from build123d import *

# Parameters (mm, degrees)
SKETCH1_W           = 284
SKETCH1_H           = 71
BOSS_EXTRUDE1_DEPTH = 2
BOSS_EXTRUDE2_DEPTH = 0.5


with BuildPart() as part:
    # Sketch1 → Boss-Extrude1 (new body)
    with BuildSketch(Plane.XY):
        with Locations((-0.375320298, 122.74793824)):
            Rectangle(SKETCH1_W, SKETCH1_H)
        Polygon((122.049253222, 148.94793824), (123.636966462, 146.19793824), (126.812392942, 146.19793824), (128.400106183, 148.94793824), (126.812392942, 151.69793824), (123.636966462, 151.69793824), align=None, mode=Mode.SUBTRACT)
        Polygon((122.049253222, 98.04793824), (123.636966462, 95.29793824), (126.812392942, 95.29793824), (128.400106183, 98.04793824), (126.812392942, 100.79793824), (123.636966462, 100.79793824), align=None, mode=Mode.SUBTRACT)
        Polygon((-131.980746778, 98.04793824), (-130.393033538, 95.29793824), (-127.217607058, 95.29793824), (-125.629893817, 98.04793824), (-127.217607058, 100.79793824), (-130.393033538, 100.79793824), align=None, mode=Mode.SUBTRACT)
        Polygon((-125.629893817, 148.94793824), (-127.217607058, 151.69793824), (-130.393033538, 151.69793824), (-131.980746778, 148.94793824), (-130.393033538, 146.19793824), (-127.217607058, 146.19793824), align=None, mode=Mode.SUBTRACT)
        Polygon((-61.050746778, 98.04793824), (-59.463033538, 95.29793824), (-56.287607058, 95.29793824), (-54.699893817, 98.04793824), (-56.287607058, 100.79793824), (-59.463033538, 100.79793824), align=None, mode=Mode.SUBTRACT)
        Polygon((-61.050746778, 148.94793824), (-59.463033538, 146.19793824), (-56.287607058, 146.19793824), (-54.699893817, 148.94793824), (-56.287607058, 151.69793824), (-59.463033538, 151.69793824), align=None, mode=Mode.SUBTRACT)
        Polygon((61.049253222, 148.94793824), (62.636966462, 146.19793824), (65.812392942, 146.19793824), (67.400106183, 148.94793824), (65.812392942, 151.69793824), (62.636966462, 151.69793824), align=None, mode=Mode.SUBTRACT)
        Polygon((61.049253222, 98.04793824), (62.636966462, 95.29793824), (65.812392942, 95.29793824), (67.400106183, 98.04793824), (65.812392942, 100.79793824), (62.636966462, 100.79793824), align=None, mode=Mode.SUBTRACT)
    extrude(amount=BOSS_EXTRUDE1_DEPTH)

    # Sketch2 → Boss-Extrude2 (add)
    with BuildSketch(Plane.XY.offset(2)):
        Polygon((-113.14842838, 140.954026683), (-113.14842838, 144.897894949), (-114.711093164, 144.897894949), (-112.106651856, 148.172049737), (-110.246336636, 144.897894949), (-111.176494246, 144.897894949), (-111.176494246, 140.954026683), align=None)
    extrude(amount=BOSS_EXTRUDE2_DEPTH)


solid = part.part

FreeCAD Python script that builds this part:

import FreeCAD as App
import Part
import Sketcher

V = App.Vector
Q = App.Units.Quantity

doc = App.newDocument("Part")
params = doc.addObject("Spreadsheet::Sheet", "Params")
for row, (alias, value) in enumerate([
    ("sketch1_width", "284 mm"),
    ("sketch1_height", "71 mm"),
    ("pad1_length", "2 mm"),
    ("pad2_length", "0.5 mm"),
], start=1):
    params.set(f"A{row}", alias)
    params.set(f"B{row}", "=" + value)
    params.setAlias(f"B{row}", alias)

body = doc.addObject("PartDesign::Body", "Body")

sketch1 = body.newObject("Sketcher::SketchObject", "Sketch")
sketch1.AttachmentSupport = (doc.getObject("XY_Plane"), [""])
sketch1.MapMode = "FlatFace"
sketch1.addGeometry([
    Part.LineSegment(V(-142.4, 158.2, 0), V(-142.4, 87.2, 0)),
    Part.LineSegment(V(-142.4, 87.2, 0), V(141.6, 87.2, 0)),
    Part.LineSegment(V(141.6, 87.2, 0), V(141.6, 158.2, 0)),
    Part.LineSegment(V(141.6, 158.2, 0), V(-142.4, 158.2, 0)),
    Part.LineSegment(V(-130.4, 95.3, 0), V(-132, 98, 0)),
    Part.LineSegment(V(-132, 98, 0), V(-130.4, 100.8, 0)),
    Part.LineSegment(V(-130.4, 100.8, 0), V(-127.2, 100.8, 0)),
    Part.LineSegment(V(-127.2, 100.8, 0), V(-125.6, 98, 0)),
    Part.LineSegment(V(-125.6, 98, 0), V(-127.2, 95.3, 0)),
    Part.LineSegment(V(-127.2, 95.3, 0), V(-130.4, 95.3, 0)),
    Part.LineSegment(V(-59.5, 95.3, 0), V(-61.1, 98, 0)),
    Part.LineSegment(V(-61.1, 98, 0), V(-59.5, 100.8, 0)),
    Part.LineSegment(V(-59.5, 100.8, 0), V(-56.3, 100.8, 0)),
    Part.LineSegment(V(-56.3, 100.8, 0), V(-54.7, 98, 0)),
    Part.LineSegment(V(-54.7, 98, 0), V(-56.3, 95.3, 0)),
    Part.LineSegment(V(-56.3, 95.3, 0), V(-59.5, 95.3, 0)),
    Part.LineSegment(V(62.6, 95.3, 0), V(61, 98, 0)),
    Part.LineSegment(V(61, 98, 0), V(62.6, 100.8, 0)),
    Part.LineSegment(V(62.6, 100.8, 0), V(65.8, 100.8, 0)),
    Part.LineSegment(V(65.8, 100.8, 0), V(67.4, 98, 0)),
    Part.LineSegment(V(67.4, 98, 0), V(65.8, 95.3, 0)),
    Part.LineSegment(V(65.8, 95.3, 0), V(62.6, 95.3, 0)),
    Part.LineSegment(V(123.6, 95.3, 0), V(122, 98, 0)),
    Part.LineSegment(V(122, 98, 0), V(123.6, 100.8, 0)),
    Part.LineSegment(V(123.6, 100.8, 0), V(126.8, 100.8, 0)),
    Part.LineSegment(V(126.8, 100.8, 0), V(128.4, 98, 0)),
    Part.LineSegment(V(128.4, 98, 0), V(126.8, 95.3, 0)),
    Part.LineSegment(V(126.8, 95.3, 0), V(123.6, 95.3, 0)),
    Part.LineSegment(V(-127.2, 151.7, 0), V(-125.6, 148.9, 0)),
    Part.LineSegment(V(-125.6, 148.9, 0), V(-127.2, 146.2, 0)),
    Part.LineSegment(V(-127.2, 146.2, 0), V(-130.4, 146.2, 0)),
    Part.LineSegment(V(-130.4, 146.2, 0), V(-132, 148.9, 0)),
    Part.LineSegment(V(-132, 148.9, 0), V(-130.4, 151.7, 0)),
    Part.LineSegment(V(-130.4, 151.7, 0), V(-127.2, 151.7, 0)),
    Part.LineSegment(V(-59.5, 146.2, 0), V(-61.1, 148.9, 0)),
    Part.LineSegment(V(-61.1, 148.9, 0), V(-59.5, 151.7, 0)),
    Part.LineSegment(V(-59.5, 151.7, 0), V(-56.3, 151.7, 0)),
    Part.LineSegment(V(-56.3, 151.7, 0), V(-54.7, 148.9, 0)),
    Part.LineSegment(V(-54.7, 148.9, 0), V(-56.3, 146.2, 0)),
    Part.LineSegment(V(-56.3, 146.2, 0), V(-59.5, 146.2, 0)),
    Part.LineSegment(V(62.6, 146.2, 0), V(61, 148.9, 0)),
    Part.LineSegment(V(61, 148.9, 0), V(62.6, 151.7, 0)),
    Part.LineSegment(V(62.6, 151.7, 0), V(65.8, 151.7, 0)),
    Part.LineSegment(V(65.8, 151.7, 0), V(67.4, 148.9, 0)),
    Part.LineSegment(V(67.4, 148.9, 0), V(65.8, 146.2, 0)),
    Part.LineSegment(V(65.8, 146.2, 0), V(62.6, 146.2, 0)),
    Part.LineSegment(V(123.6, 146.2, 0), V(122, 148.9, 0)),
    Part.LineSegment(V(122, 148.9, 0), V(123.6, 151.7, 0)),
    Part.LineSegment(V(123.6, 151.7, 0), V(126.8, 151.7, 0)),
    Part.LineSegment(V(126.8, 151.7, 0), V(128.4, 148.9, 0)),
    Part.LineSegment(V(128.4, 148.9, 0), V(126.8, 146.2, 0)),
    Part.LineSegment(V(126.8, 146.2, 0), V(123.6, 146.2, 0)),
], False)
sketch1.addConstraint([
    Sketcher.Constraint("Coincident", 0, 2, 1, 1),
    Sketcher.Constraint("Coincident", 1, 2, 2, 1),
    Sketcher.Constraint("Coincident", 2, 2, 3, 1),
    Sketcher.Constraint("Coincident", 3, 2, 0, 1),
    Sketcher.Constraint("Coincident", 4, 2, 5, 1),
    Sketcher.Constraint("Coincident", 5, 2, 6, 1),
    Sketcher.Constraint("Coincident", 6, 2, 7, 1),
    Sketcher.Constraint("Coincident", 7, 2, 8, 1),
    Sketcher.Constraint("Coincident", 8, 2, 9, 1),
    Sketcher.Constraint("Coincident", 9, 2, 4, 1),
    Sketcher.Constraint("Coincident", 10, 2, 11, 1),
    Sketcher.Constraint("Coincident", 11, 2, 12, 1),
    Sketcher.Constraint("Coincident", 12, 2, 13, 1),
    Sketcher.Constraint("Coincident", 13, 2, 14, 1),
    Sketcher.Constraint("Coincident", 14, 2, 15, 1),
    Sketcher.Constraint("Coincident", 15, 2, 10, 1),
    Sketcher.Constraint("Coincident", 16, 2, 17, 1),
    Sketcher.Constraint("Coincident", 17, 2, 18, 1),
    Sketcher.Constraint("Coincident", 18, 2, 19, 1),
    Sketcher.Constraint("Coincident", 19, 2, 20, 1),
    Sketcher.Constraint("Coincident", 20, 2, 21, 1),
    Sketcher.Constraint("Coincident", 21, 2, 16, 1),
    Sketcher.Constraint("Coincident", 22, 2, 23, 1),
    Sketcher.Constraint("Coincident", 23, 2, 24, 1),
    Sketcher.Constraint("Coincident", 24, 2, 25, 1),
    Sketcher.Constraint("Coincident", 25, 2, 26, 1),
    Sketcher.Constraint("Coincident", 26, 2, 27, 1),
    Sketcher.Constraint("Coincident", 27, 2, 22, 1),
    Sketcher.Constraint("Coincident", 28, 2, 29, 1),
    Sketcher.Constraint("Coincident", 29, 2, 30, 1),
    Sketcher.Constraint("Coincident", 30, 2, 31, 1),
    Sketcher.Constraint("Coincident", 31, 2, 32, 1),
    Sketcher.Constraint("Coincident", 32, 2, 33, 1),
    Sketcher.Constraint("Coincident", 33, 2, 28, 1),
    Sketcher.Constraint("Coincident", 34, 2, 35, 1),
    Sketcher.Constraint("Coincident", 35, 2, 36, 1),
    Sketcher.Constraint("Coincident", 36, 2, 37, 1),
    Sketcher.Constraint("Coincident", 37, 2, 38, 1),
    Sketcher.Constraint("Coincident", 38, 2, 39, 1),
    Sketcher.Constraint("Coincident", 39, 2, 34, 1),
    Sketcher.Constraint("Coincident", 40, 2, 41, 1),
    Sketcher.Constraint("Coincident", 41, 2, 42, 1),
    Sketcher.Constraint("Coincident", 42, 2, 43, 1),
    Sketcher.Constraint("Coincident", 43, 2, 44, 1),
    Sketcher.Constraint("Coincident", 44, 2, 45, 1),
    Sketcher.Constraint("Coincident", 45, 2, 40, 1),
    Sketcher.Constraint("Coincident", 46, 2, 47, 1),
    Sketcher.Constraint("Coincident", 47, 2, 48, 1),
    Sketcher.Constraint("Coincident", 48, 2, 49, 1),
    Sketcher.Constraint("Coincident", 49, 2, 50, 1),
    Sketcher.Constraint("Coincident", 50, 2, 51, 1),
    Sketcher.Constraint("Coincident", 51, 2, 46, 1),
    Sketcher.Constraint("Vertical", 0),
    Sketcher.Constraint("Horizontal", 1),
    Sketcher.Constraint("Vertical", 2),
    Sketcher.Constraint("Horizontal", 3),
    Sketcher.Constraint("Horizontal", 6),
    Sketcher.Constraint("Horizontal", 9),
    Sketcher.Constraint("Horizontal", 12),
    Sketcher.Constraint("Horizontal", 15),
    Sketcher.Constraint("Horizontal", 18),
    Sketcher.Constraint("Horizontal", 21),
    Sketcher.Constraint("Horizontal", 24),
    Sketcher.Constraint("Horizontal", 27),
    Sketcher.Constraint("Horizontal", 30),
    Sketcher.Constraint("Horizontal", 33),
    Sketcher.Constraint("Horizontal", 36),
    Sketcher.Constraint("Horizontal", 39),
    Sketcher.Constraint("Horizontal", 42),
    Sketcher.Constraint("Horizontal", 45),
    Sketcher.Constraint("Horizontal", 48),
    Sketcher.Constraint("Horizontal", 51),
    Sketcher.Constraint("Parallel", 4, 7),
    Sketcher.Constraint("Parallel", 5, 8),
    Sketcher.Constraint("Parallel", 7, 10),
    Sketcher.Constraint("Parallel", 8, 11),
    Sketcher.Constraint("Parallel", 10, 13),
    Sketcher.Constraint("Parallel", 11, 14),
    Sketcher.Constraint("Parallel", 13, 16),
    Sketcher.Constraint("Parallel", 14, 17),
    Sketcher.Constraint("Parallel", 16, 19),
    Sketcher.Constraint("Parallel", 17, 20),
    Sketcher.Constraint("Parallel", 19, 22),
    Sketcher.Constraint("Parallel", 20, 23),
    Sketcher.Constraint("Parallel", 22, 25),
    Sketcher.Constraint("Parallel", 23, 26),
    Sketcher.Constraint("Parallel", 25, 28),
    Sketcher.Constraint("Parallel", 26, 29),
    Sketcher.Constraint("Parallel", 28, 31),
    Sketcher.Constraint("Parallel", 29, 32),
    Sketcher.Constraint("Parallel", 31, 34),
    Sketcher.Constraint("Parallel", 32, 35),
    Sketcher.Constraint("Parallel", 34, 37),
    Sketcher.Constraint("Parallel", 35, 38),
    Sketcher.Constraint("Parallel", 37, 40),
    Sketcher.Constraint("Parallel", 38, 41),
    Sketcher.Constraint("Parallel", 40, 43),
    Sketcher.Constraint("Parallel", 41, 44),
    Sketcher.Constraint("Parallel", 43, 46),
    Sketcher.Constraint("Parallel", 44, 47),
    Sketcher.Constraint("Parallel", 46, 49),
    Sketcher.Constraint("Parallel", 47, 50),
    Sketcher.Constraint("Horizontal", 4, 2, 7, 2),
    Sketcher.Constraint("Horizontal", 7, 2, 10, 2),
    Sketcher.Constraint("Horizontal", 6, 2, 11, 2),
    Sketcher.Constraint("Horizontal", 10, 2, 13, 2),
    Sketcher.Constraint("Horizontal", 9, 2, 14, 2),
    Sketcher.Constraint("Horizontal", 13, 2, 16, 2),
    Sketcher.Constraint("Horizontal", 12, 2, 17, 2),
    Sketcher.Constraint("Horizontal", 16, 2, 19, 2),
    Sketcher.Constraint("Horizontal", 15, 2, 20, 2),
    Sketcher.Constraint("Horizontal", 19, 2, 22, 2),
    Sketcher.Constraint("Horizontal", 18, 2, 23, 2),
    Sketcher.Constraint("Horizontal", 22, 2, 25, 2),
    Sketcher.Constraint("Horizontal", 21, 2, 26, 2),
    Sketcher.Constraint("Horizontal", 28, 2, 31, 2),
    Sketcher.Constraint("Horizontal", 31, 2, 34, 2),
    Sketcher.Constraint("Horizontal", 33, 2, 35, 2),
    Sketcher.Constraint("Horizontal", 34, 2, 37, 2),
    Sketcher.Constraint("Horizontal", 30, 2, 38, 2),
    Sketcher.Constraint("Horizontal", 37, 2, 40, 2),
    Sketcher.Constraint("Horizontal", 36, 2, 41, 2),
    Sketcher.Constraint("Horizontal", 40, 2, 43, 2),
    Sketcher.Constraint("Horizontal", 39, 2, 44, 2),
    Sketcher.Constraint("Horizontal", 43, 2, 46, 2),
    Sketcher.Constraint("Horizontal", 42, 2, 47, 2),
    Sketcher.Constraint("Horizontal", 46, 2, 49, 2),
    Sketcher.Constraint("Horizontal", 45, 2, 50, 2),
    Sketcher.Constraint("Vertical", 6, 2, 8, 2),
    Sketcher.Constraint("Vertical", 5, 2, 9, 2),
    Sketcher.Constraint("Vertical", 7, 2, 28, 2),
    Sketcher.Constraint("Vertical", 8, 2, 29, 2),
    Sketcher.Constraint("Vertical", 9, 2, 30, 2),
    Sketcher.Constraint("Vertical", 30, 2, 32, 2),
    Sketcher.Constraint("Vertical", 10, 2, 34, 2),
    Sketcher.Constraint("Vertical", 14, 2, 36, 2),
    Sketcher.Constraint("Vertical", 16, 2, 40, 2),
    Sketcher.Constraint("Vertical", 20, 2, 42, 2),
    Sketcher.Constraint("Vertical", 22, 2, 46, 2),
    Sketcher.Constraint("Vertical", 26, 2, 48, 2),
    Sketcher.Constraint("Equal", 9, 12),
    Sketcher.Constraint("Equal", 15, 18),
    Sketcher.Constraint("Equal", 21, 24),
    Sketcher.Constraint("DistanceX", 1, 1, 1, 2, Q("284 mm")),
    Sketcher.Constraint("DistanceY", 0, 2, 0, 1, Q("71 mm")),
    Sketcher.Constraint("Angle", 4, Q("120 deg")),
    Sketcher.Constraint("DistanceX", 19, 2, 25, 2, Q("61 mm")),
    Sketcher.Constraint("DistanceY", 0, 2, 4, 2, Q("10.8 mm")),
    Sketcher.Constraint("DistanceY", 8, 2, 6, 2, Q("5.5 mm")),
    Sketcher.Constraint("DistanceY", 28, 2, 3, 2, Q("9.3 mm")),
    Sketcher.Constraint("DistanceX", 5, 2, 11, 2, Q("70.93 mm")),
    Sketcher.Constraint("DistanceX", 6, 1, 6, 2, Q("3.175426 mm")),
    Sketcher.Constraint("DistanceX", 0, 2, -1, 1, Q("142.37532 mm")),
    Sketcher.Constraint("DistanceY", -1, 1, 0, 2, Q("87.247938 mm")),
    Sketcher.Constraint("DistanceX", 12, 2, 16, 2, Q("117.33686 mm")),
    Sketcher.Constraint("DistanceX", 4, 2, -1, 1, Q("131.980747 mm")),
])
sketch1.setExpression("Constraints[143]", "Params.sketch1_width")
sketch1.setExpression("Constraints[144]", "Params.sketch1_height")
pad1 = body.newObject("PartDesign::Pad", "Pad")
pad1.Profile = sketch1
pad1.setExpression("Length", "Params.pad1_length")

sketch2 = body.newObject("Sketcher::SketchObject", "Sketch001")
sketch2.AttachmentSupport = (doc.getObject("XY_Plane"), [""])
sketch2.MapMode = "FlatFace"
sketch2.AttachmentOffset = App.Placement(V(0, 0, 2), App.Rotation())
sketch2.addGeometry([
    Part.LineSegment(V(-113.1, 144.9, 0), V(-113.1, 141, 0)),
    Part.LineSegment(V(-113.1, 141, 0), V(-111.2, 141, 0)),
    Part.LineSegment(V(-111.2, 141, 0), V(-111.2, 144.9, 0)),
    Part.LineSegment(V(-111.2, 144.9, 0), V(-110.2, 144.9, 0)),
    Part.LineSegment(V(-110.2, 144.9, 0), V(-112.1, 148.2, 0)),
    Part.LineSegment(V(-112.1, 148.2, 0), V(-114.7, 144.9, 0)),
    Part.LineSegment(V(-114.7, 144.9, 0), V(-113.1, 144.9, 0)),
], False)
sketch2.addConstraint([
    Sketcher.Constraint("Coincident", 0, 2, 1, 1),
    Sketcher.Constraint("Coincident", 1, 2, 2, 1),
    Sketcher.Constraint("Coincident", 2, 2, 3, 1),
    Sketcher.Constraint("Coincident", 3, 2, 4, 1),
    Sketcher.Constraint("Coincident", 4, 2, 5, 1),
    Sketcher.Constraint("Coincident", 5, 2, 6, 1),
    Sketcher.Constraint("Coincident", 6, 2, 0, 1),
    Sketcher.Constraint("Vertical", 0),
    Sketcher.Constraint("Horizontal", 1),
    Sketcher.Constraint("Vertical", 2),
    Sketcher.Constraint("Horizontal", 3),
    Sketcher.Constraint("Horizontal", 6),
    Sketcher.Constraint("Horizontal", 3, 2, 5, 2),
    Sketcher.Constraint("DistanceY", 0, 2, 0, 1, Q("3.943868 mm")),
    Sketcher.Constraint("DistanceX", 5, 2, 2, 2, Q("3.534599 mm")),
    Sketcher.Constraint("Distance", 4, Q("3.765749 mm")),
    Sketcher.Constraint("DistanceX", 1, 1, 1, 2, Q("1.971934 mm")),
    Sketcher.Constraint("DistanceX", 3, 1, 3, 2, Q("0.930158 mm")),
    Sketcher.Constraint("DistanceX", 0, 2, -1, 1, Q("113.148428 mm")),
    Sketcher.Constraint("DistanceX", 4, 2, -1, 1, Q("112.106652 mm")),
    Sketcher.Constraint("DistanceY", -1, 1, 4, 2, Q("148.17205 mm")),
])
pad2 = body.newObject("PartDesign::Pad", "Pad001")
pad2.Profile = sketch2
pad2.setExpression("Length", "Params.pad2_length")

doc.recompute()
